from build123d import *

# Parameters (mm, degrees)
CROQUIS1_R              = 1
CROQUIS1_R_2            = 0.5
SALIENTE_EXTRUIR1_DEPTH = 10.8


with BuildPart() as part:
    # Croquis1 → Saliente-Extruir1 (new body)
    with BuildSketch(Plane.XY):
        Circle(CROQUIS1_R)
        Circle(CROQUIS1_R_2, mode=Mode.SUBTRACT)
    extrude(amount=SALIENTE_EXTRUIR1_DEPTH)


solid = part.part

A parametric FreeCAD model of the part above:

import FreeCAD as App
import Part
import Sketcher
from FreeCAD import Vector

doc = App.newDocument("Part")
body = doc.addObject("PartDesign::Body", "Body")

# Sketch on XY plane
sketch1 = body.newObject("Sketcher::SketchObject", "Sketch")
sketch1.AttachmentSupport = (doc.getObject("XY_Plane"), [""])
sketch1.MapMode = "FlatFace"
sketch1.addGeometry([
    Part.Circle(Vector(0, 0, 0), Vector(0, 0, 1), 1),
    Part.Circle(Vector(0, 0, 0), Vector(0, 0, 1), 0.5),
], False)
sketch1.addConstraint([
    Sketcher.Constraint("Coincident", 0, 3, -1, 1),
    Sketcher.Constraint("Coincident", 1, 3, -1, 1),
    Sketcher.Constraint("Diameter", 0, 2.0),
    Sketcher.Constraint("Diameter", 1, 1.0),
])
pad1 = body.newObject("PartDesign::Pad", "Pad")
pad1.Profile = sketch1
pad1.Length = 10.8

doc.recompute()
